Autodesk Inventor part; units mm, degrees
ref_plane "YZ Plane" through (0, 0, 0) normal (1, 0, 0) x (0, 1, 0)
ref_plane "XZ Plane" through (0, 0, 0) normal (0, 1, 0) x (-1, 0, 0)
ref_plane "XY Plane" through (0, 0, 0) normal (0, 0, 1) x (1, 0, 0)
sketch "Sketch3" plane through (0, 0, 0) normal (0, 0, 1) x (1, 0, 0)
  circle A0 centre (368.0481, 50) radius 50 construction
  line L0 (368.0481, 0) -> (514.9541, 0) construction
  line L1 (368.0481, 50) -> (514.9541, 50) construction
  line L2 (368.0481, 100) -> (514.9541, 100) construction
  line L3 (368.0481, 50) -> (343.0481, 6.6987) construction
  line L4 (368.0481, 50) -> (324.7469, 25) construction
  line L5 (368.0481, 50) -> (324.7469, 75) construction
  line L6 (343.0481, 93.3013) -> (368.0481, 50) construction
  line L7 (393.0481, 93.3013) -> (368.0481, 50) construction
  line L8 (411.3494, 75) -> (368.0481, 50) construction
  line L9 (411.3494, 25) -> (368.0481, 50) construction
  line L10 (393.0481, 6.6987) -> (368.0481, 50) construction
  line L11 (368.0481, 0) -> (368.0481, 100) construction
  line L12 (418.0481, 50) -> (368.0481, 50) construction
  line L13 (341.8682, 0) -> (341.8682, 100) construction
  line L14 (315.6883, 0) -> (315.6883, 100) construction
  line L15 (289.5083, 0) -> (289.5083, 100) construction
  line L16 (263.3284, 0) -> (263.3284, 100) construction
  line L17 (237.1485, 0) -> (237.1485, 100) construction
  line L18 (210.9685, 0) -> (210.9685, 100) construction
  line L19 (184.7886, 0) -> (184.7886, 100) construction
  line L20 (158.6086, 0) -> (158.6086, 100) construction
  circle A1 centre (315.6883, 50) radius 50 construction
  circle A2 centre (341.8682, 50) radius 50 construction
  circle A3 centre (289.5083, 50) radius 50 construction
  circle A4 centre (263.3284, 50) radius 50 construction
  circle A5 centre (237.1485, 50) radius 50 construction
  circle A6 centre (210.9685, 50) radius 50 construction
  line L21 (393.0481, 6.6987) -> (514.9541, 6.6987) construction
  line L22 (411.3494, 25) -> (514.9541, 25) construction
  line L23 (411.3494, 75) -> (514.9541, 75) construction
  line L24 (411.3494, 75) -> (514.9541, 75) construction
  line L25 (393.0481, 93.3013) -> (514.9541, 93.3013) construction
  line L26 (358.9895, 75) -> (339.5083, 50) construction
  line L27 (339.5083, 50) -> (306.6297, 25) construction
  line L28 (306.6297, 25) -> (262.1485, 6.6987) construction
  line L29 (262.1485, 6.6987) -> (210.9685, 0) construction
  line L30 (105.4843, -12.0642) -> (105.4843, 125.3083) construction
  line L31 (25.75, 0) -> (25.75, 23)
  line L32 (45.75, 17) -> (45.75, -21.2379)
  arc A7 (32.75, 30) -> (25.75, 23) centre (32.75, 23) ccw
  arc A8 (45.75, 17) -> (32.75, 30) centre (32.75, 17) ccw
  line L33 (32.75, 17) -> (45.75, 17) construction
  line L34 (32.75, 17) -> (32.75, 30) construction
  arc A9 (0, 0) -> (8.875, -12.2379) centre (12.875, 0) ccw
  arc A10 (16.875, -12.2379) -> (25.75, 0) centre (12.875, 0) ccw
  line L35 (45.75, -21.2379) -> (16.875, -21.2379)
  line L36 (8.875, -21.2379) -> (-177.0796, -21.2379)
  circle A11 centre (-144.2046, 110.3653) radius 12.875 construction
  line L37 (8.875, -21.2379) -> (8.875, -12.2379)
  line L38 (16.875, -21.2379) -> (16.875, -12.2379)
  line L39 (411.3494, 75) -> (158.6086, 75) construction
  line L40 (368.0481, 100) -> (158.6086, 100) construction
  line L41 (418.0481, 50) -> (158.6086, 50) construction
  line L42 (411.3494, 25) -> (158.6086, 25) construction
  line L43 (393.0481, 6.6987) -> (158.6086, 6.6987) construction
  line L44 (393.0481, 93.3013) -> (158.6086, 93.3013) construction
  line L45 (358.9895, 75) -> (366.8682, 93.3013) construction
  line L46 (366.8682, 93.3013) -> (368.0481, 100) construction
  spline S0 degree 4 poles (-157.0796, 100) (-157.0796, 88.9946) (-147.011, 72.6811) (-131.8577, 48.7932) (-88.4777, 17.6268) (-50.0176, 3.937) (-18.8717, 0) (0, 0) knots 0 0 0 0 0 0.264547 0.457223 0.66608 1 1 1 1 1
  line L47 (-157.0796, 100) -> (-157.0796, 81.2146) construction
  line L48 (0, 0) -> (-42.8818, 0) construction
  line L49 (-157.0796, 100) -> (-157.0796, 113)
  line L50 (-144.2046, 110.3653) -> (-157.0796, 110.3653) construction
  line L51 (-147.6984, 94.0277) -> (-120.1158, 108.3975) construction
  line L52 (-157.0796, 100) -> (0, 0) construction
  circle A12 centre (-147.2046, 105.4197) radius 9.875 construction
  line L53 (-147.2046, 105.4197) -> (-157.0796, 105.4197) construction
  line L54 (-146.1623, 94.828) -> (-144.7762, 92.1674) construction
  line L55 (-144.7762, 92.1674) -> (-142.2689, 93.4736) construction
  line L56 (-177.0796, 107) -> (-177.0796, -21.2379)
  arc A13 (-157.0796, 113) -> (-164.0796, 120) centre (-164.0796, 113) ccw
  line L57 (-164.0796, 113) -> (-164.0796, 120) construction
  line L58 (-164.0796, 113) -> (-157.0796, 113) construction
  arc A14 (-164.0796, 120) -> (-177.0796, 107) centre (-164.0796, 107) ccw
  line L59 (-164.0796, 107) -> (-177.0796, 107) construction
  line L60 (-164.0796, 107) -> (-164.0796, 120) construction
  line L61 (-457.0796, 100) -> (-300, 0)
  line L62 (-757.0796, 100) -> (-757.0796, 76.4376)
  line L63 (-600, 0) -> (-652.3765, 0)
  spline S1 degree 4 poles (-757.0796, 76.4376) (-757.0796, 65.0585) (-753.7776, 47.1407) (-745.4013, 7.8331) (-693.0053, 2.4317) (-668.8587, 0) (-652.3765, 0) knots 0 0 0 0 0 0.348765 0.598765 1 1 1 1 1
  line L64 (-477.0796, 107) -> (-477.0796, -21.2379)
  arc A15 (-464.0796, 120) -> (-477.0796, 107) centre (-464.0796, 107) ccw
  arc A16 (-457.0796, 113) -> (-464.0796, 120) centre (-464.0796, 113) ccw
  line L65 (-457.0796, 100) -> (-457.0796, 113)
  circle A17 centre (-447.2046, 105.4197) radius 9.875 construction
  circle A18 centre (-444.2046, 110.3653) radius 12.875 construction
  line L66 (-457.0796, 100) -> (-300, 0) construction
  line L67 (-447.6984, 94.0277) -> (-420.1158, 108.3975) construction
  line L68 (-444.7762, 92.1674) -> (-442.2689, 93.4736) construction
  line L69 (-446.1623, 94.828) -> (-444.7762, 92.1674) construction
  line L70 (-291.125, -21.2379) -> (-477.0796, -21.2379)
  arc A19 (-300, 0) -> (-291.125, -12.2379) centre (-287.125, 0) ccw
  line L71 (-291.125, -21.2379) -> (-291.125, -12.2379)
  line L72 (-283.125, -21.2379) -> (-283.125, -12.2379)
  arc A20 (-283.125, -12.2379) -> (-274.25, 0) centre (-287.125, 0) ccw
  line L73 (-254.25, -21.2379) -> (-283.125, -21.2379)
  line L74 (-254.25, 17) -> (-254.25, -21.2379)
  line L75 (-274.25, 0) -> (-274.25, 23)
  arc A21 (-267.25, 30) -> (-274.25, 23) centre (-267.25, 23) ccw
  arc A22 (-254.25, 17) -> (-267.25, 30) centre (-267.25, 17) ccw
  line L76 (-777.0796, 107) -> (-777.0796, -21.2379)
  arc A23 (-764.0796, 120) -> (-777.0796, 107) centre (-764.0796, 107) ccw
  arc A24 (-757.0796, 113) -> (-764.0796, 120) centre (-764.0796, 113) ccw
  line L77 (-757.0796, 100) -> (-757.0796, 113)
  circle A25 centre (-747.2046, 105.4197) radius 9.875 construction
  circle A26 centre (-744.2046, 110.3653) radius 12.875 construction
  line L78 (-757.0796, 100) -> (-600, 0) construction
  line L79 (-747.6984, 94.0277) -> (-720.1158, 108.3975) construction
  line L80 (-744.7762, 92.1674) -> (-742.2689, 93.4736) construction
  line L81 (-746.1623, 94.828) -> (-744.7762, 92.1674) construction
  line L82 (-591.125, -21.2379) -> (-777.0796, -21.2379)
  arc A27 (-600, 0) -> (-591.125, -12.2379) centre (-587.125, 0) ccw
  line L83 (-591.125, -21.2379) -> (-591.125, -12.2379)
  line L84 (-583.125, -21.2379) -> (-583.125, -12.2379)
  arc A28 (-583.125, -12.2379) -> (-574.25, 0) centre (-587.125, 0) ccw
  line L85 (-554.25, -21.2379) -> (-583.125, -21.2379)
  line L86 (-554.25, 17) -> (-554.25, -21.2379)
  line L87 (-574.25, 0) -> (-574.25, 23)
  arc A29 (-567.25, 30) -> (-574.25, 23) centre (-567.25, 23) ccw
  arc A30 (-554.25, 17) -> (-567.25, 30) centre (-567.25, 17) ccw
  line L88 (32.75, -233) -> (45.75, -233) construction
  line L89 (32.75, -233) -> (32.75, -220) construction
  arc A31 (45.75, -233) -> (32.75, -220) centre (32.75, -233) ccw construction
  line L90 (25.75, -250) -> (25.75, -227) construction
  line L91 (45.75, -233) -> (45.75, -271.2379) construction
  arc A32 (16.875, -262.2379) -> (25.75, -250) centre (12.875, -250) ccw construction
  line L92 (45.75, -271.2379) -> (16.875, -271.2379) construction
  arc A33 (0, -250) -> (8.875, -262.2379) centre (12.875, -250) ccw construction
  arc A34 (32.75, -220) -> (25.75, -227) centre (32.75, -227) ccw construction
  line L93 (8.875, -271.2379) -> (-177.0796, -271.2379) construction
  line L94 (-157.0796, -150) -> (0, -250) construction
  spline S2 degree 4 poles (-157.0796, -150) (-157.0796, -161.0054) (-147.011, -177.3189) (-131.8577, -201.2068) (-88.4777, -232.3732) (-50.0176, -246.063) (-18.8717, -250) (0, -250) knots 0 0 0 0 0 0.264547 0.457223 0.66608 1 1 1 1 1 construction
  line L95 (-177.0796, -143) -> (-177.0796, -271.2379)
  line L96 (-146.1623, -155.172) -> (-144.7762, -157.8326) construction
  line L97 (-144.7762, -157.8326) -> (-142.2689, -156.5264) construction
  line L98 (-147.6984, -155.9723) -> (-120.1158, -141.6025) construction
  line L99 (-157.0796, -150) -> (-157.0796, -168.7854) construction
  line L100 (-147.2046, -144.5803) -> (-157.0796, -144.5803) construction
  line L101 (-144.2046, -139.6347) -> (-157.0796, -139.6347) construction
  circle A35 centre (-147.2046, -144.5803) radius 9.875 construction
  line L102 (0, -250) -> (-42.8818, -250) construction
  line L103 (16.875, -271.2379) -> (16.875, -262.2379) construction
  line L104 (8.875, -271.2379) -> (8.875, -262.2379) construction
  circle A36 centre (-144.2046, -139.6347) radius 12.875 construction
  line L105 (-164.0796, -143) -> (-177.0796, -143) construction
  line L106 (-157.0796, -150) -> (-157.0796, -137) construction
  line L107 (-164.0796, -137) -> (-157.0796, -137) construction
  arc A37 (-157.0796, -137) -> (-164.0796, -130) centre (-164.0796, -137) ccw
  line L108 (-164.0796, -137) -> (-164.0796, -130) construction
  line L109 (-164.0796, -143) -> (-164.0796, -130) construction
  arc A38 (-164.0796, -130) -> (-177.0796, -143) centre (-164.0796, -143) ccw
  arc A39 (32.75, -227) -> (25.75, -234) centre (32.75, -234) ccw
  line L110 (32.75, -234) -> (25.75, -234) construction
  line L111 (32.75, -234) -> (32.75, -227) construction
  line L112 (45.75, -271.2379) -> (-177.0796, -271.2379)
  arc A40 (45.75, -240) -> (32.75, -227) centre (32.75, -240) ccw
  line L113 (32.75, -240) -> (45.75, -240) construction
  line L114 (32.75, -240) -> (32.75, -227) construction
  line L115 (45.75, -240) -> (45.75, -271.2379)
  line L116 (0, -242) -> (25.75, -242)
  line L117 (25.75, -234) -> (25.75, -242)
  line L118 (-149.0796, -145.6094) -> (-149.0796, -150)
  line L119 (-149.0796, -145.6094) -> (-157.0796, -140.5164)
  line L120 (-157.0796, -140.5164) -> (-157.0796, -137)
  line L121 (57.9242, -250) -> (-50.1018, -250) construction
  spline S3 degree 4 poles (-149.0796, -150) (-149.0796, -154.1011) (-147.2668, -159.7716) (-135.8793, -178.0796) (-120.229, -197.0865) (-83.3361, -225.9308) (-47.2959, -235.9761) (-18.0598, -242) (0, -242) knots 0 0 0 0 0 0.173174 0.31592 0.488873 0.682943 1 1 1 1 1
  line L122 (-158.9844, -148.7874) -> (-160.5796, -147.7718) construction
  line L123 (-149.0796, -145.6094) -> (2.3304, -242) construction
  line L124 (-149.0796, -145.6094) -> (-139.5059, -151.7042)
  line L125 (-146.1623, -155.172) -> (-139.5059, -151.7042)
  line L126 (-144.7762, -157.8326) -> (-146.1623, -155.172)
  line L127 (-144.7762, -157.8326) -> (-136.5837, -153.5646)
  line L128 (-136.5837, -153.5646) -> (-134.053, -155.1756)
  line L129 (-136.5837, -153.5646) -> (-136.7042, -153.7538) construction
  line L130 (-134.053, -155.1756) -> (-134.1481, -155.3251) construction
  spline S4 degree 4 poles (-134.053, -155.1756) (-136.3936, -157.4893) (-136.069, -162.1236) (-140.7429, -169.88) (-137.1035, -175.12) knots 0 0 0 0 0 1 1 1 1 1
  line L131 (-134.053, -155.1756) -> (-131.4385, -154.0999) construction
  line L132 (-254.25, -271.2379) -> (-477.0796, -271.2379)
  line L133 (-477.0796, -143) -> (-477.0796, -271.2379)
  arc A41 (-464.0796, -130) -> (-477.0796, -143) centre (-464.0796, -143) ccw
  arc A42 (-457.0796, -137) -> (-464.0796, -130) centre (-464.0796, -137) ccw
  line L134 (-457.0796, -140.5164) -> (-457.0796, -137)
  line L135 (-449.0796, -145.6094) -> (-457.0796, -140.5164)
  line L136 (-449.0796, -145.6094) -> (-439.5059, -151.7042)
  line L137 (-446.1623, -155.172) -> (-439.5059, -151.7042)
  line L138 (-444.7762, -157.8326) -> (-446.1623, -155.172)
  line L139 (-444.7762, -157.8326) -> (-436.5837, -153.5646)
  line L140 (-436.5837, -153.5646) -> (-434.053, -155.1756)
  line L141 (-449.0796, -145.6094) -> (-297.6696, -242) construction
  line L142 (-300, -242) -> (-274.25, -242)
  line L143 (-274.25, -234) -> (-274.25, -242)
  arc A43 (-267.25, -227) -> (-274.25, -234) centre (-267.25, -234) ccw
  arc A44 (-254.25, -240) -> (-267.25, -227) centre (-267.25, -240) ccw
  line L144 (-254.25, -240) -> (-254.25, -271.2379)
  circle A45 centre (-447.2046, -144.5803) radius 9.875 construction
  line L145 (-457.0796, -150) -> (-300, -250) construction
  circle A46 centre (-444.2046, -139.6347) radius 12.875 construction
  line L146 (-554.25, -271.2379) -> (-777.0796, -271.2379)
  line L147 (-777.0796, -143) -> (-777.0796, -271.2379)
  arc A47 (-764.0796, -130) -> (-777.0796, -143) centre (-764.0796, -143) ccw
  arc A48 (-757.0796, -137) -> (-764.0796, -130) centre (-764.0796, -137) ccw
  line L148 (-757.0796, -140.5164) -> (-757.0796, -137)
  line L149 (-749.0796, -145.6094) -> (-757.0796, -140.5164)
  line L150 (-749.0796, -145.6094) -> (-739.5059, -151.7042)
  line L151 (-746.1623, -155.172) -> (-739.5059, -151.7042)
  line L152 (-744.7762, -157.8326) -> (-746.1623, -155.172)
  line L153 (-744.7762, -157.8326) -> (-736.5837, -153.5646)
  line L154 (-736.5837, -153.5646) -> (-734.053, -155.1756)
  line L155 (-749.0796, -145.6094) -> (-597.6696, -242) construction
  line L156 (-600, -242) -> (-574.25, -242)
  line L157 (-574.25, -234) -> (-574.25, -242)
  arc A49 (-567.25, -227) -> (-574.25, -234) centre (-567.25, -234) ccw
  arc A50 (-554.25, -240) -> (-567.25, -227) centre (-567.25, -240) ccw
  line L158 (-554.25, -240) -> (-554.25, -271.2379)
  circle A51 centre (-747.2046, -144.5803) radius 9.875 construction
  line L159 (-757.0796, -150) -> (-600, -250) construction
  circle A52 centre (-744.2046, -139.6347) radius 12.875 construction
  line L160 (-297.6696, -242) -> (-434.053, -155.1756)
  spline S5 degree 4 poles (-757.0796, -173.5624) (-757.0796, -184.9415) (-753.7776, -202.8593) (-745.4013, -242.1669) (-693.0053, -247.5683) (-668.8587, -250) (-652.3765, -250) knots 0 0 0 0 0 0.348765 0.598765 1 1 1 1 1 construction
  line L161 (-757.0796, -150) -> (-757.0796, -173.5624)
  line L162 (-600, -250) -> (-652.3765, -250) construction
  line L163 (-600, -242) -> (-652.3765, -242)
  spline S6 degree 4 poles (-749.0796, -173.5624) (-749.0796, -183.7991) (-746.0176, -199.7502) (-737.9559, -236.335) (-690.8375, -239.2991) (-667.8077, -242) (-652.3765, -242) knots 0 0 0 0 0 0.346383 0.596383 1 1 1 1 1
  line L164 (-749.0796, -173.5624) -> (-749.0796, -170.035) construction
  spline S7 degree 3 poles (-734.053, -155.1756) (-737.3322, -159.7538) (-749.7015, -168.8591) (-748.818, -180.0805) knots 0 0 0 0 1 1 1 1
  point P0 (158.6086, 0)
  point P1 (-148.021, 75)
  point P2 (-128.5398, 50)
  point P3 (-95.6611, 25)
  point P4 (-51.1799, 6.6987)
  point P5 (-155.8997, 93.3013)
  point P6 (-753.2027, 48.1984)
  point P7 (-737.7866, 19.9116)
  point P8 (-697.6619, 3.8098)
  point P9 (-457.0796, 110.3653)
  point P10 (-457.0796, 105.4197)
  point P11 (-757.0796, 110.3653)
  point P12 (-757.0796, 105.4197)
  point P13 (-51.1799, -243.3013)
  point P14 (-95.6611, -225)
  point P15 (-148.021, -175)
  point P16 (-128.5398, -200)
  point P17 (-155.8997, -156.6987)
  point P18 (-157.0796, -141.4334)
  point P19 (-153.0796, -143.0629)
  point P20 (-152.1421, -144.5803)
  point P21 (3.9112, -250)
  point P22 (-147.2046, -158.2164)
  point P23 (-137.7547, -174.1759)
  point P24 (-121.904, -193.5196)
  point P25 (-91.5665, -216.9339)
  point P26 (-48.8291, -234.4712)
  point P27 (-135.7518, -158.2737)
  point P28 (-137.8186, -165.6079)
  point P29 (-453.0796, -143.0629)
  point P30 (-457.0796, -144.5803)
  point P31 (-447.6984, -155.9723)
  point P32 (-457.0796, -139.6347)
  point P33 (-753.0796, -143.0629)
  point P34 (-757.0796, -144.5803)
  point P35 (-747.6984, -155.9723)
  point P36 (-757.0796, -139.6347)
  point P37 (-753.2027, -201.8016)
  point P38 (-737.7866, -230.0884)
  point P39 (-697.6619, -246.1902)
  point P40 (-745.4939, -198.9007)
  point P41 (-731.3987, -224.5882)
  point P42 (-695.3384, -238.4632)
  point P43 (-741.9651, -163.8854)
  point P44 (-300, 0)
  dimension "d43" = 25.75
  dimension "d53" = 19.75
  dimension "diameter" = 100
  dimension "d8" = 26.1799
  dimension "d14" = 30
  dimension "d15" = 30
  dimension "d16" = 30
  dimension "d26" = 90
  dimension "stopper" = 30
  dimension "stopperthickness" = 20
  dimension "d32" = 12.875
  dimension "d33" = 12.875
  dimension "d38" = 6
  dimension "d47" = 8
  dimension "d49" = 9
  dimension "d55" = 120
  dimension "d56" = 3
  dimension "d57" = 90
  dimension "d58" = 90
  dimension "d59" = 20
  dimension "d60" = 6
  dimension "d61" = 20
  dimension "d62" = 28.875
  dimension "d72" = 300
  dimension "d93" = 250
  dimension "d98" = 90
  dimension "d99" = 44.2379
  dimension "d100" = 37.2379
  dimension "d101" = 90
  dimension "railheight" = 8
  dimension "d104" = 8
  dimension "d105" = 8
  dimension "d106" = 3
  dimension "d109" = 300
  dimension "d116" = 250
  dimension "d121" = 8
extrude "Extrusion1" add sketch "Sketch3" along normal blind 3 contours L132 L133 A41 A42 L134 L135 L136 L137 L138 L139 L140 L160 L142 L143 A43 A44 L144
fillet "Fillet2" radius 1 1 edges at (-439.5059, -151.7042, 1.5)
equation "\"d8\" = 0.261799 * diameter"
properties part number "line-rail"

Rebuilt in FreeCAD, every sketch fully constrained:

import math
import FreeCAD as App
import Part
import Sketcher
from FreeCAD import Vector
Q = App.Units.Quantity


def edges_at(feature, points):
    """Names of the edges that pass closest to the given points."""
    edges = feature.Shape.Edges
    near = lambda p: min(range(len(edges)), key=lambda i: edges[i].distToShape(Part.Vertex(*p))[0])
    return sorted({f"Edge{near(p) + 1}" for p in points})

doc = App.newDocument("Part")
body = doc.addObject("PartDesign::Body", "Body")

# Sketch on XY plane
sketch1 = body.newObject("Sketcher::SketchObject", "Sketch")
sketch1.AttachmentSupport = (doc.getObject("XY_Plane"), [""])
sketch1.MapMode = "FlatFace"
sketch1.addGeometry([
    Part.LineSegment(Vector(-477.0796, -271.2379, 0), Vector(-254.25, -271.2379, 0)),  # 0
    Part.LineSegment(Vector(-254.25, -271.2379, 0), Vector(-254.25, -240, 0)),  # 1
    Part.ArcOfCircle(Part.Circle(Vector(-267.25, -240, 0), Vector(0, 0, 1), 13), math.radians(0), math.radians(90)),  # 2
    Part.ArcOfCircle(Part.Circle(Vector(-267.25, -234, 0), Vector(0, 0, 1), 7), math.radians(90), math.radians(180)),  # 3
    Part.LineSegment(Vector(-274.25, -234, 0), Vector(-274.25, -242, 0)),  # 4
    Part.LineSegment(Vector(-274.25, -242, 0), Vector(-297.6696, -242, 0)),  # 5
    Part.LineSegment(Vector(-297.6696, -242, 0), Vector(-434.053, -155.1756, 0)),  # 6
    Part.LineSegment(Vector(-434.053, -155.1756, 0), Vector(-436.5837, -153.5646, 0)),  # 7
    Part.LineSegment(Vector(-436.5837, -153.5646, 0), Vector(-444.7762, -157.8326, 0)),  # 8
    Part.LineSegment(Vector(-444.7762, -157.8326, 0), Vector(-446.1623, -155.172, 0)),  # 9
    Part.LineSegment(Vector(-446.1623, -155.172, 0), Vector(-439.5059, -151.7042, 0)),  # 10
    Part.LineSegment(Vector(-439.5059, -151.7042, 0), Vector(-449.0796, -145.6094, 0)),  # 11
    Part.LineSegment(Vector(-449.0796, -145.6094, 0), Vector(-457.0796, -140.5164, 0)),  # 12
    Part.LineSegment(Vector(-457.0796, -140.5164, 0), Vector(-457.0796, -137, 0)),  # 13
    Part.ArcOfCircle(Part.Circle(Vector(-464.0796, -137, 0), Vector(0, 0, 1), 7), math.radians(0), math.radians(90)),  # 14
    Part.ArcOfCircle(Part.Circle(Vector(-464.0796, -143, 0), Vector(0, 0, 1), 13), math.radians(90), math.radians(180)),  # 15
    Part.LineSegment(Vector(-477.0796, -143, 0), Vector(-477.0796, -271.2379, 0)),  # 16
], False)
sketch1.addConstraint([
    Sketcher.Constraint("Coincident", 0, 2, 1, 1),
    Sketcher.Constraint("Coincident", 1, 2, 2, 1),
    Sketcher.Constraint("Coincident", 2, 2, 3, 1),
    Sketcher.Constraint("Coincident", 3, 2, 4, 1),
    Sketcher.Constraint("Coincident", 4, 2, 5, 1),
    Sketcher.Constraint("Coincident", 5, 2, 6, 1),
    Sketcher.Constraint("Coincident", 6, 2, 7, 1),
    Sketcher.Constraint("Coincident", 7, 2, 8, 1),
    Sketcher.Constraint("Coincident", 8, 2, 9, 1),
    Sketcher.Constraint("Coincident", 9, 2, 10, 1),
    Sketcher.Constraint("Coincident", 10, 2, 11, 1),
    Sketcher.Constraint("Coincident", 11, 2, 12, 1),
    Sketcher.Constraint("Coincident", 12, 2, 13, 1),
    Sketcher.Constraint("Coincident", 13, 2, 14, 1),
    Sketcher.Constraint("Coincident", 14, 2, 15, 1),
    Sketcher.Constraint("Coincident", 15, 2, 16, 1),
    Sketcher.Constraint("Coincident", 16, 2, 0, 1),
    Sketcher.Constraint("Horizontal", 0),
    Sketcher.Constraint("Vertical", 1),
    Sketcher.Constraint("Vertical", 4),
    Sketcher.Constraint("Horizontal", 5),
    Sketcher.Constraint("Vertical", 13),
    Sketcher.Constraint("Vertical", 16),
    Sketcher.Constraint("DistanceY", 4, 2, 4, 1, Q("8 mm")),
    Sketcher.Constraint("Distance", 7, Q("3 mm")),
    Sketcher.Constraint("Distance", 9, Q("3 mm")),
    Sketcher.Constraint("Radius", 2, Q("13 mm")),
    Sketcher.Constraint("Radius", 3, Q("7 mm")),
    Sketcher.Constraint("Radius", 14, Q("7 mm")),
    Sketcher.Constraint("Radius", 15, Q("13 mm")),
    Sketcher.Constraint("DistanceY", 1, 2, 3, 3, Q("6 mm")),
    Sketcher.Constraint("DistanceY", 2, 3, 3, 2, Q("6 mm")),
    Sketcher.Constraint("DistanceX", 3, 2, 1, 2, Q("20 mm")),
    Sketcher.Constraint("DistanceX", 12, 2, 11, 2, Q("8 mm")),
    Sketcher.Constraint("DistanceY", 15, 3, 13, 2, Q("6 mm")),
    Sketcher.Constraint("DistanceY", 15, 2, 14, 3, Q("6 mm")),
    Sketcher.Constraint("DistanceX", 15, 2, 12, 2, Q("20 mm")),
    Sketcher.Constraint("DistanceY", 2, 3, -1, 1, Q("240 mm")),
    Sketcher.Constraint("DistanceY", 14, 3, -1, 1, Q("137 mm")),
    Sketcher.Constraint("DistanceY", 0, 2, 3, 3, Q("37.238 mm")),
    Sketcher.Constraint("DistanceX", 2, 2, 1, 2, Q("13 mm")),
    Sketcher.Constraint("DistanceX", 14, 2, 13, 2, Q("7 mm")),
    Sketcher.Constraint("DistanceX", 2, 3, -1, 1, Q("267.25 mm")),
    Sketcher.Constraint("Distance", 11, Q("11.349 mm")),
    Sketcher.Constraint("DistanceX", 0, 1, 0, 2, Q("222.8296 mm")),
    Sketcher.Constraint("DistanceX", 5, 2, 5, 1, Q("23.4196 mm")),
    Sketcher.Constraint("DistanceY", 13, 1, 13, 2, Q("3.5164 mm")),
    Sketcher.Constraint("DistanceX", 6, 2, -1, 1, Q("434.053 mm")),
    Sketcher.Constraint("DistanceY", 9, 2, -1, 1, Q("155.172 mm")),
    Sketcher.Constraint("DistanceX", 10, 2, -1, 1, Q("439.506 mm")),
    Sketcher.Constraint("DistanceY", 6, 2, 7, 2, Q("1.611 mm")),
    Sketcher.Constraint("DistanceY", 8, 2, 7, 2, Q("4.268 mm")),
    Sketcher.Constraint("DistanceX", 9, 2, 8, 2, Q("1.386 mm")),
    Sketcher.Constraint("DistanceY", 11, 2, 12, 2, Q("5.093 mm")),
    Sketcher.Constraint("Distance", 8, Q("9.2376 mm")),
])
pad1 = body.newObject("PartDesign::Pad", "Pad")
pad1.Profile = sketch1
pad1.Length = 3
doc.recompute()

fillet = body.newObject("PartDesign::Fillet", "Fillet")
fillet.Base = (pad1, edges_at(pad1, [(-439.506, -151.704, 1.5)]))
fillet.Radius = 1

doc.recompute()
